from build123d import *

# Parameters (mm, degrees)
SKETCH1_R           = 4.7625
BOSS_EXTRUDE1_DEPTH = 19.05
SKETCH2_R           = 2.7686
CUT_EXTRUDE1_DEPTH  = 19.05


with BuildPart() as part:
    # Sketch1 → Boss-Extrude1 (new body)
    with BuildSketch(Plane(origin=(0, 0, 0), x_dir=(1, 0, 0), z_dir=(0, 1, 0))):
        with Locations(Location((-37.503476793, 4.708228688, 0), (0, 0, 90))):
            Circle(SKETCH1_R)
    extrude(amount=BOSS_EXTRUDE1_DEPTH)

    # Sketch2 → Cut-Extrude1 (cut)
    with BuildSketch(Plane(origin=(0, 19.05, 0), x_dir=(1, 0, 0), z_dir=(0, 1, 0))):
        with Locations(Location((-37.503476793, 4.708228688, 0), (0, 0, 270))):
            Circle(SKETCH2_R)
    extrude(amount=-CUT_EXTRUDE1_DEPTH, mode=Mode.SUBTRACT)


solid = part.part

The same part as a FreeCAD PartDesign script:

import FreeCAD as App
import Part
import Sketcher
from FreeCAD import Vector
Q = App.Units.Quantity

doc = App.newDocument("Part")
body = doc.addObject("PartDesign::Body", "Body")

sketch1 = body.newObject("Sketcher::SketchObject", "Sketch")
sketch1.AttachmentSupport = (doc.getObject("XZ_Plane"), [""])
sketch1.MapMode = "FlatFace"
sketch1.addGeometry(Part.Circle(Vector(-37.5, -4.7, 0), Vector(0, 0, 1), 4.8), False)
sketch1.addConstraint([
    Sketcher.Constraint("Diameter", 0, Q("0.375 in")),
    Sketcher.Constraint("DistanceY", 0, 3, -1, 1, 4.708229),
    Sketcher.Constraint("DistanceX", 0, 3, -1, 1, 37.503477),
])
pad1 = body.newObject("PartDesign::Pad", "Pad")
pad1.Profile = sketch1
pad1.Length = Q("0.75 in")
pad1.Reversed = True

sketch2 = body.newObject("Sketcher::SketchObject", "Sketch001")
sketch2.AttachmentSupport = (doc.getObject("XZ_Plane"), [""])
sketch2.MapMode = "FlatFace"
sketch2.AttachmentOffset = App.Placement(Vector(0, 0, -0.75 * 25.4), App.Rotation())
sketch2.addGeometry(Part.Circle(Vector(-37.5, -4.7, 0), Vector(0, 0, 1), 2.8), False)
sketch2.addConstraint([
    Sketcher.Constraint("Diameter", 0, Q("0.218 in")),
    Sketcher.Constraint("DistanceY", 0, 3, -1, 1, 4.708229),
    Sketcher.Constraint("DistanceX", 0, 3, -1, 1, 37.503477),
])
pocket1 = body.newObject("PartDesign::Pocket", "Pocket")
pocket1.Profile = sketch2
pocket1.Length = Q("0.75 in")
pocket1.Reversed = True

doc.recompute()
